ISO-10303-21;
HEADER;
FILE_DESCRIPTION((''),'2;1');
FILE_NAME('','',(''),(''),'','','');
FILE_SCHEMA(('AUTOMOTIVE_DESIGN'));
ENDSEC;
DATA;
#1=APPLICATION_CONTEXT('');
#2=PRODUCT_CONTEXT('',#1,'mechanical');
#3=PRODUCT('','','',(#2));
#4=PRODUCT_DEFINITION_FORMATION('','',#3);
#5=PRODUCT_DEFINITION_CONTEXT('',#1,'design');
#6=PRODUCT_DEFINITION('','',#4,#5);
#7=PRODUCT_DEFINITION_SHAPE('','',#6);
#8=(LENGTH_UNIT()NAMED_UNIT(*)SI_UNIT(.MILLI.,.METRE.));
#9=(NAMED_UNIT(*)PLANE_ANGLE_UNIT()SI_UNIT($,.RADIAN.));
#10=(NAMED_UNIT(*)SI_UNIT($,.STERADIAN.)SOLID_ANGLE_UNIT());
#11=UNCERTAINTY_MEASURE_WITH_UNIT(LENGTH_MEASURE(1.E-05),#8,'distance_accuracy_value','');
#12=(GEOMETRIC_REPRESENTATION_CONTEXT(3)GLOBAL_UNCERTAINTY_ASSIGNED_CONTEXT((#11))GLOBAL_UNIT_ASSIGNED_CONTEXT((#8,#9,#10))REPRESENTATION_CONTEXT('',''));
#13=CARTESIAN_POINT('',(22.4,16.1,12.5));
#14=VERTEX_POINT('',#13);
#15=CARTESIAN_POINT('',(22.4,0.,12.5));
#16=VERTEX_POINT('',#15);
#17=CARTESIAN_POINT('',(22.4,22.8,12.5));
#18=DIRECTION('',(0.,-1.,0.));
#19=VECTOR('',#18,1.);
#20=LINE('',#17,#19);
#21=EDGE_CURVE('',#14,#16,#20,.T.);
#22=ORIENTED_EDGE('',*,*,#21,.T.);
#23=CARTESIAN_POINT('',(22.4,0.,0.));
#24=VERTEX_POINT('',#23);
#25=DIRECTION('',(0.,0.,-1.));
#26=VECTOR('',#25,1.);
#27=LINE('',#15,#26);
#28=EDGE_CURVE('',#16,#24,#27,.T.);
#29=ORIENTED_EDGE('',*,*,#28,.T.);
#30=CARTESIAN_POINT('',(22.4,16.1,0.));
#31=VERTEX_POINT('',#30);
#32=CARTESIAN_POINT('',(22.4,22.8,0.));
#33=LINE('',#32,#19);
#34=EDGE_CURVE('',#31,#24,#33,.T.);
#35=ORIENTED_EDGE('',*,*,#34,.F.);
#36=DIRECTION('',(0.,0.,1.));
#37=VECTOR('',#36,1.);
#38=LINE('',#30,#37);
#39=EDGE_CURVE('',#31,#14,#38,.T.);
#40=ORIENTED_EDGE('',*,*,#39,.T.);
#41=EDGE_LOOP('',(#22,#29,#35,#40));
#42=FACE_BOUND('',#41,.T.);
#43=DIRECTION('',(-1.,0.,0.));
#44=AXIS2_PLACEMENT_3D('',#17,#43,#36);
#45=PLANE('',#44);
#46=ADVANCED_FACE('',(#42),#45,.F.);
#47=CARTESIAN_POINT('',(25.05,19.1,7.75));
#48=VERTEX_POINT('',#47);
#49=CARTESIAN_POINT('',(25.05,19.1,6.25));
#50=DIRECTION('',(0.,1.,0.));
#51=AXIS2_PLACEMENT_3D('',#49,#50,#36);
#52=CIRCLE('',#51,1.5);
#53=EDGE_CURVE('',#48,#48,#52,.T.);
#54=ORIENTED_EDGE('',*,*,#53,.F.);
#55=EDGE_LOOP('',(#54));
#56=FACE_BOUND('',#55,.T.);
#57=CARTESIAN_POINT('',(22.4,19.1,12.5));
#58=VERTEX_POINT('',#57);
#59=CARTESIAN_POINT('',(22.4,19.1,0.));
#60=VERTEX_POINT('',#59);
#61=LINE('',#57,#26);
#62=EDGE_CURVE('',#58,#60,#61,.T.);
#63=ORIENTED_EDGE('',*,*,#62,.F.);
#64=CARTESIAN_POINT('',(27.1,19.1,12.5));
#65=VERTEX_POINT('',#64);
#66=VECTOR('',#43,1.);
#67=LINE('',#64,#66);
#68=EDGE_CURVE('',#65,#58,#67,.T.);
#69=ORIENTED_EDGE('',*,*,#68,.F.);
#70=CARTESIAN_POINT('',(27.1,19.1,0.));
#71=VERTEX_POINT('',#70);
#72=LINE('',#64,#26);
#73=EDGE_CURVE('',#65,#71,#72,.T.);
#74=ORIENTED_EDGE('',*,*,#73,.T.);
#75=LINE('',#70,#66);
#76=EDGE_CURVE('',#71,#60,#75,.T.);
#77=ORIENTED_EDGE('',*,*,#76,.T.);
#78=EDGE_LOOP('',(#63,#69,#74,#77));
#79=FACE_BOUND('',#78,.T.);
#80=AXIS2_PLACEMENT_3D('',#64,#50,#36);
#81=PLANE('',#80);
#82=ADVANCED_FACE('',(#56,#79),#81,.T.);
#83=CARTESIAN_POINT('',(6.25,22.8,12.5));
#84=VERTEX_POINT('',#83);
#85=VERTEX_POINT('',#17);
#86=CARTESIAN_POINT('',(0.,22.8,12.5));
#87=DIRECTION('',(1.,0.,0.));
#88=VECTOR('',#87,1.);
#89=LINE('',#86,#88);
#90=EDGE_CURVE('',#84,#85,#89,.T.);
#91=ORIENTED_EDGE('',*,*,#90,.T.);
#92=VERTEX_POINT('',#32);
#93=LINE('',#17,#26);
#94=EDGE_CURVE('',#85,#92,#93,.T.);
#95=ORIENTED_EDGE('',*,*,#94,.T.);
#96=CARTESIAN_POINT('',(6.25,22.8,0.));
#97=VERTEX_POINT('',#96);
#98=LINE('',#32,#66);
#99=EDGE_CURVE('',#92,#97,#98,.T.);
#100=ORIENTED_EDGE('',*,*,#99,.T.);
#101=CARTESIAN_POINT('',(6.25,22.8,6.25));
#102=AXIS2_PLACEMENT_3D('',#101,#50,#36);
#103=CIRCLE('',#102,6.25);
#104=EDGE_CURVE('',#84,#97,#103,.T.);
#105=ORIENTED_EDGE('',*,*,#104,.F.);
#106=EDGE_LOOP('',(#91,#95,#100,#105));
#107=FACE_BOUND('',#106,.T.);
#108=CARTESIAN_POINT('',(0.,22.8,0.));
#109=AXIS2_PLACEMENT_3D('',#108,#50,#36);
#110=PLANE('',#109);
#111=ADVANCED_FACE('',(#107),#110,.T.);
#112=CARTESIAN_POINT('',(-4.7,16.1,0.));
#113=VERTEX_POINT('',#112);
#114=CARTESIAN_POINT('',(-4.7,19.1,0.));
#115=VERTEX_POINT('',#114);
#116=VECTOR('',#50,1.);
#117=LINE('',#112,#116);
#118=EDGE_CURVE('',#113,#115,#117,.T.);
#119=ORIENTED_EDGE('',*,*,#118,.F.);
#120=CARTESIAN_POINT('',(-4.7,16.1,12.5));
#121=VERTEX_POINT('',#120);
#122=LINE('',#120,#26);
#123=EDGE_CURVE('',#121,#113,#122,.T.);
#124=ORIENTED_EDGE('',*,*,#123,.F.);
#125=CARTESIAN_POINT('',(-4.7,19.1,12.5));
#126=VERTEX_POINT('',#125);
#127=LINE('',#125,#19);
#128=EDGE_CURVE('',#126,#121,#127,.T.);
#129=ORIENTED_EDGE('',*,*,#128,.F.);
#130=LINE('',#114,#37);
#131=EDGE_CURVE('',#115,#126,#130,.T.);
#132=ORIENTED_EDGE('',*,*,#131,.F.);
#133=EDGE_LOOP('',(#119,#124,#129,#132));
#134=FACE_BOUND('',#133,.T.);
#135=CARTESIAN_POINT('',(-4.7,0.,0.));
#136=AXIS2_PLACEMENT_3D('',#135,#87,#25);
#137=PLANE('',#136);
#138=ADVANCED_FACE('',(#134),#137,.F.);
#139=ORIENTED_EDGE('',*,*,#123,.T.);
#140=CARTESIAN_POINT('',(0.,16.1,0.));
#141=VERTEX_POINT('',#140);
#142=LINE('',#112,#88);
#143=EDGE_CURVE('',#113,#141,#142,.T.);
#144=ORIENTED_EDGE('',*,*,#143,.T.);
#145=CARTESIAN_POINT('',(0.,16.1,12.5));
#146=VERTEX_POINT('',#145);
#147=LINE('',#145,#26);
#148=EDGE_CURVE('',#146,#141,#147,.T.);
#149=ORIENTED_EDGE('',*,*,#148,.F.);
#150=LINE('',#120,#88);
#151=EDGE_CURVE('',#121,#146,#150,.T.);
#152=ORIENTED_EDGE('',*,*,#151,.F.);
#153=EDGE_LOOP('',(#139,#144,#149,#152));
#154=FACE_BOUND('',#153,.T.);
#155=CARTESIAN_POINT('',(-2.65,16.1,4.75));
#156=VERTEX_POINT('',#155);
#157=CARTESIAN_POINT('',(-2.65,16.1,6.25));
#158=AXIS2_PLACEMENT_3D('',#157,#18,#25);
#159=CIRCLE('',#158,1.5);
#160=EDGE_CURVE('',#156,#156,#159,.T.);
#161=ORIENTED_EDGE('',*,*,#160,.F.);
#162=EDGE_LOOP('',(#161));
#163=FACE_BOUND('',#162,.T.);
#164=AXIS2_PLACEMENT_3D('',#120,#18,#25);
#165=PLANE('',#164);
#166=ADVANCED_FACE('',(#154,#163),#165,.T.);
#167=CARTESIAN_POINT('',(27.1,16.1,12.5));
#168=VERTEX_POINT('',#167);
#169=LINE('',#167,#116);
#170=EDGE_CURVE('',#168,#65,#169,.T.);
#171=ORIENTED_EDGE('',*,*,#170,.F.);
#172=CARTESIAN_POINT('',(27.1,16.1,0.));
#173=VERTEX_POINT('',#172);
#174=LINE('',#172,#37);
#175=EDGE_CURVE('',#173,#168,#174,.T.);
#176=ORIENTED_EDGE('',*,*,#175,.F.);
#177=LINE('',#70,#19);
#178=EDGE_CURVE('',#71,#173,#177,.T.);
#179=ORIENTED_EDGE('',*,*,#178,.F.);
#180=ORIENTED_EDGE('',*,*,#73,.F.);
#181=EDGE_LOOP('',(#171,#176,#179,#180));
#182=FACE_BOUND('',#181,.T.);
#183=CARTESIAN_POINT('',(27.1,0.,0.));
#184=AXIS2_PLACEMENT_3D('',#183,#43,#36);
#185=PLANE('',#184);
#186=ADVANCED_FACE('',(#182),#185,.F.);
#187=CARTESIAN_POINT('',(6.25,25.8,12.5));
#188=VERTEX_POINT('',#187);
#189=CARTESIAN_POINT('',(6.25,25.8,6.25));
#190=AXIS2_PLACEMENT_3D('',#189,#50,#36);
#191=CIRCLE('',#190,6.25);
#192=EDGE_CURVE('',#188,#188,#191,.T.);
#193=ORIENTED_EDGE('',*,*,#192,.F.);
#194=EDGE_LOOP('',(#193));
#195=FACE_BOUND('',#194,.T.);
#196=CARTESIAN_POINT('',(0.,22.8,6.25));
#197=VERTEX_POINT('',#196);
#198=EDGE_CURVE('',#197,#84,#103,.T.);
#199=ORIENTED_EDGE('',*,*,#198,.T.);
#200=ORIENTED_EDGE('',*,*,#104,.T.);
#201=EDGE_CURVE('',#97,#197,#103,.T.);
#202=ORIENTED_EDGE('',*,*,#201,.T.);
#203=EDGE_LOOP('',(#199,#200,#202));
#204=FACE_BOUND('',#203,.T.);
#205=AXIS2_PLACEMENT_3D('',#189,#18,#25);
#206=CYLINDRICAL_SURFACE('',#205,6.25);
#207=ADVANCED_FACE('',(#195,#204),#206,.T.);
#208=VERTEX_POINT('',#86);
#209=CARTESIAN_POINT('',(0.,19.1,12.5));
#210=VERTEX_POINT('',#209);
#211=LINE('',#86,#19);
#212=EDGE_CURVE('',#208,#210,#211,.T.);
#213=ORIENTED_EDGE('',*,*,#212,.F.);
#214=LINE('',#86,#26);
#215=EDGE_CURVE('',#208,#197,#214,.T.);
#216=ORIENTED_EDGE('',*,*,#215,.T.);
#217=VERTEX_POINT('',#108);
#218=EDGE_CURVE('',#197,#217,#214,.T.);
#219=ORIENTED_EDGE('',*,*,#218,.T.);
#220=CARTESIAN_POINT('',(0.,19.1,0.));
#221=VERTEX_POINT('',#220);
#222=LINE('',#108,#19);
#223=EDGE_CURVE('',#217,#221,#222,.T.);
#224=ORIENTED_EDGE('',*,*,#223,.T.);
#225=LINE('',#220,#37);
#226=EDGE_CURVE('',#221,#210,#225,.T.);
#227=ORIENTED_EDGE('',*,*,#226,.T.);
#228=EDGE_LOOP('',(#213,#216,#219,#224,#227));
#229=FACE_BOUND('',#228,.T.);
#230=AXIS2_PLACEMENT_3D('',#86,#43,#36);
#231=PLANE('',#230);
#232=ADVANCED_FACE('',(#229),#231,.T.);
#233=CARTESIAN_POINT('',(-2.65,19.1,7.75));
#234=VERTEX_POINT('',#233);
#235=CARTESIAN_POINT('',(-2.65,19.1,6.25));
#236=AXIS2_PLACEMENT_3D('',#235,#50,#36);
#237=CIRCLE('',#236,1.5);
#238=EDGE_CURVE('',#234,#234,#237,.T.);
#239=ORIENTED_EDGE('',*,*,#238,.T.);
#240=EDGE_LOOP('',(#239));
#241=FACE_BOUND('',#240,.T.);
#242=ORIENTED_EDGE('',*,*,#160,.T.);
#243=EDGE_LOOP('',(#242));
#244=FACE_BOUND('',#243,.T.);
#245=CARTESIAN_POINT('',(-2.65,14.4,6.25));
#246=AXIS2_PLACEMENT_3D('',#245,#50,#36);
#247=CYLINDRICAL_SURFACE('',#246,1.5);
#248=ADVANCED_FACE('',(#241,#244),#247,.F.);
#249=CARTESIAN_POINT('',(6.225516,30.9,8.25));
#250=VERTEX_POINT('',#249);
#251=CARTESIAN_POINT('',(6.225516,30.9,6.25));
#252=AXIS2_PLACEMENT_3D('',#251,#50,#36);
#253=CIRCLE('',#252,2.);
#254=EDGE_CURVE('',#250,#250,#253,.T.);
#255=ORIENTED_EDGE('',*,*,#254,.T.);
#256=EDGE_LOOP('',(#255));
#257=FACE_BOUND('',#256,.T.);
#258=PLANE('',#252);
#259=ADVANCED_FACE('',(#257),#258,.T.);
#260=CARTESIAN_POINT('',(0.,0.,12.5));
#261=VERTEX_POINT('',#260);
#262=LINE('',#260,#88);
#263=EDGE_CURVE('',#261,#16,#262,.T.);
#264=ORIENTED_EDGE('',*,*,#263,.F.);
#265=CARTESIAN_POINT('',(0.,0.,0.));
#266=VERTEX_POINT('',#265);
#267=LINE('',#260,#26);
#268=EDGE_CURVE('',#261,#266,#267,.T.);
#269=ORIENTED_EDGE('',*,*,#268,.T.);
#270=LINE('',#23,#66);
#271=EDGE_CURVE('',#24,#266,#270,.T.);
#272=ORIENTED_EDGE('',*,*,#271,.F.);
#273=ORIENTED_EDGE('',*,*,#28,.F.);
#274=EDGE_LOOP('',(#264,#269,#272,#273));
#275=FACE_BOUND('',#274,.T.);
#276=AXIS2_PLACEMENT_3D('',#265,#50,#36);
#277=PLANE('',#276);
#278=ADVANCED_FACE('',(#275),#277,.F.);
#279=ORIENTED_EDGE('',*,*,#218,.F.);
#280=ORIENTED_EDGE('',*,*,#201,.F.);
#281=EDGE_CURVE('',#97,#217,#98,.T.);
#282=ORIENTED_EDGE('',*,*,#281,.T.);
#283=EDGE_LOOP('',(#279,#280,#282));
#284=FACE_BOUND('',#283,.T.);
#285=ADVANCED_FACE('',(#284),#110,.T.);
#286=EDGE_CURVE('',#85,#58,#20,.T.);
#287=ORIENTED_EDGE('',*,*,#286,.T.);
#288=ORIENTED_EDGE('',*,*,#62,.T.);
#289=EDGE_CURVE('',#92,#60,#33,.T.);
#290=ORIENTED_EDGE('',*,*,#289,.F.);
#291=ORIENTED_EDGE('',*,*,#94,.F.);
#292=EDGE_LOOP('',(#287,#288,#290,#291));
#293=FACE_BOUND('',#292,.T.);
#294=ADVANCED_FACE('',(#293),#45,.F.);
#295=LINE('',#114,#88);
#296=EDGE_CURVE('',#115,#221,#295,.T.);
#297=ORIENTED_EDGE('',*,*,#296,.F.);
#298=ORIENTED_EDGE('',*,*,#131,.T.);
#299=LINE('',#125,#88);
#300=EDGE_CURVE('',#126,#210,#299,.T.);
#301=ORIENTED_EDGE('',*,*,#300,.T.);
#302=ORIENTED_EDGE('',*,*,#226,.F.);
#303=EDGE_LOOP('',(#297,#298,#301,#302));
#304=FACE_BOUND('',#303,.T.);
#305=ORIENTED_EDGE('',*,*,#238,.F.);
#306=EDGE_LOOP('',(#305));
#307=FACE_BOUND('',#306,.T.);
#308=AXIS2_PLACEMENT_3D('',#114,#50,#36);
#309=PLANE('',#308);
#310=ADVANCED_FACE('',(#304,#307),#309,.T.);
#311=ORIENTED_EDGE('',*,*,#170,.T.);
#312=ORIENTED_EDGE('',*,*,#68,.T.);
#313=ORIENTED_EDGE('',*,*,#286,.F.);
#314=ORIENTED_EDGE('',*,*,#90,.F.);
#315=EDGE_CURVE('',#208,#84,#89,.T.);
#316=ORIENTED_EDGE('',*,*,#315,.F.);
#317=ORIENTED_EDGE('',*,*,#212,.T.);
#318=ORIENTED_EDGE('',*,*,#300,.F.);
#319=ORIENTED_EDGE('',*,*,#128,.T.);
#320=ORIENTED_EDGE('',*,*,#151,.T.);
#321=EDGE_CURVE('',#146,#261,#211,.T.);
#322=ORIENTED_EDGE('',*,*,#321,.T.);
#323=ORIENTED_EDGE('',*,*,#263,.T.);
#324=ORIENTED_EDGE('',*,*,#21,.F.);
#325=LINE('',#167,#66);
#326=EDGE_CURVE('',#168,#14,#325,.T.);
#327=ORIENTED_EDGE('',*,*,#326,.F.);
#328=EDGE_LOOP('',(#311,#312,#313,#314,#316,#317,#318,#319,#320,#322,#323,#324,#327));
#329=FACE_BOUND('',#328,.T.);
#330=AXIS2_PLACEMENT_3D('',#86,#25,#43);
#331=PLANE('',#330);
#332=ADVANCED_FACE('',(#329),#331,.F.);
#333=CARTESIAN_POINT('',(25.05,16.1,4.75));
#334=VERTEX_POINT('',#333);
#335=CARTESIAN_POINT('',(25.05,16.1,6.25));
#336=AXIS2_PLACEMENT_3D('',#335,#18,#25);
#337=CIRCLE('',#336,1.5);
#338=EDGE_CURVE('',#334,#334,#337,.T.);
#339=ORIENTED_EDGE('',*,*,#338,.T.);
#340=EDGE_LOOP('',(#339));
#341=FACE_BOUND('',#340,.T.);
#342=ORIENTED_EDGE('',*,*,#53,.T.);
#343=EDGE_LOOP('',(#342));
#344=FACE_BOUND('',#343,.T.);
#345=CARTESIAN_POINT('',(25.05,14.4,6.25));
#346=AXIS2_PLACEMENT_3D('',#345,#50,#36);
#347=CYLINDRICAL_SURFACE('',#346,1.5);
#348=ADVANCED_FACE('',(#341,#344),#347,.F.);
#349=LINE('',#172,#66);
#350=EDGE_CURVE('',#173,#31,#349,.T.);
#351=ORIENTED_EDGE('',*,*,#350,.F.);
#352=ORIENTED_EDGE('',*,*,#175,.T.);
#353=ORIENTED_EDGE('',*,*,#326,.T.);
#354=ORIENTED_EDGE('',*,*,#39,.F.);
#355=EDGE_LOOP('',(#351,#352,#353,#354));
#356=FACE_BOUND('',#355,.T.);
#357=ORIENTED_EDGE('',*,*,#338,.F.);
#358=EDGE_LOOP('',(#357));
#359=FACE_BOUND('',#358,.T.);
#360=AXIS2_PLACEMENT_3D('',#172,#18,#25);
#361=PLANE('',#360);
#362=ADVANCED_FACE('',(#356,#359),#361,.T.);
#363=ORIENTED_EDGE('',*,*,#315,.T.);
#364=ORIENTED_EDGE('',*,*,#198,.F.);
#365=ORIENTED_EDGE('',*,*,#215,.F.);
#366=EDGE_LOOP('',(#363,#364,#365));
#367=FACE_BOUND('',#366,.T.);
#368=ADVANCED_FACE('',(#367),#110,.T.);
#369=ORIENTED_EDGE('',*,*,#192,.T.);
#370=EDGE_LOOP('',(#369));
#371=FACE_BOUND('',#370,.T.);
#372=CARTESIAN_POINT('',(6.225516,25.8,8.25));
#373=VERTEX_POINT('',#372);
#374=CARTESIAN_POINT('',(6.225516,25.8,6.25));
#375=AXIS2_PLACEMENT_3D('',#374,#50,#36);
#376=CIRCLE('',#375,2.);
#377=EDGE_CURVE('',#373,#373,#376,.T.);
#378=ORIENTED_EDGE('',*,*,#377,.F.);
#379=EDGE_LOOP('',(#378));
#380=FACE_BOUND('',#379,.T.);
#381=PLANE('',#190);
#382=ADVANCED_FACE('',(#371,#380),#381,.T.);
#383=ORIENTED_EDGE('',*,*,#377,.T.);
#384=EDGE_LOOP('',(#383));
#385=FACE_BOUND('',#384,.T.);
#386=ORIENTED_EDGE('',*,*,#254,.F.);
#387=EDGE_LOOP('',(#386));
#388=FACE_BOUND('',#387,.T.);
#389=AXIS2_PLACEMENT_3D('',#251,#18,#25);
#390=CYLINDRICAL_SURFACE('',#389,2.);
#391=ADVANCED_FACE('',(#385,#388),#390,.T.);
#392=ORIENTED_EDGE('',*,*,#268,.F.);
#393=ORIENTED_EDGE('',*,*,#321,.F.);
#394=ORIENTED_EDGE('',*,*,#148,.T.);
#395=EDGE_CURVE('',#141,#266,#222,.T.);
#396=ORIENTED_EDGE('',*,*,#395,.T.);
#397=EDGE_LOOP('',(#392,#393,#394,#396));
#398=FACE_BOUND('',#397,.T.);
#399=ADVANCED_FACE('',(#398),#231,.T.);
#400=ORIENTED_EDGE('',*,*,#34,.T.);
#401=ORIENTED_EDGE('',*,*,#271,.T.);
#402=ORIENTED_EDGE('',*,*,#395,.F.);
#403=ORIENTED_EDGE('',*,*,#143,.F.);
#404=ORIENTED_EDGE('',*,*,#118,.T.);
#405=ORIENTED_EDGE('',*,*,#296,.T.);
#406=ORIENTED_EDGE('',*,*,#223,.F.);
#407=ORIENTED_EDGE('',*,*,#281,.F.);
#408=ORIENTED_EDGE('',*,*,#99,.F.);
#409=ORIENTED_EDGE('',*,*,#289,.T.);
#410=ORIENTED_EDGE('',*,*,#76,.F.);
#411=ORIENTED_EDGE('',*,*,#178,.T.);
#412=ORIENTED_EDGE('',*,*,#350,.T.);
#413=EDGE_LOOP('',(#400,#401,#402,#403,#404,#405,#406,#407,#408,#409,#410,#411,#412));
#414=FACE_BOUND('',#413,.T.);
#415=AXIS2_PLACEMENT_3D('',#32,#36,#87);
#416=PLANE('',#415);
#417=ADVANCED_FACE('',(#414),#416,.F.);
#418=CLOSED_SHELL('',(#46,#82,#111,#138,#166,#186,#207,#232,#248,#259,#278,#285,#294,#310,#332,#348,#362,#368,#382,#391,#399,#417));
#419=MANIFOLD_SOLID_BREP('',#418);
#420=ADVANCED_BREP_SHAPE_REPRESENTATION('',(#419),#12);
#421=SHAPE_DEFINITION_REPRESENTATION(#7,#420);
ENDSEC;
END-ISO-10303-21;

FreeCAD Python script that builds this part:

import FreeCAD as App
import Part
import Sketcher

V = App.Vector
Q = App.Units.Quantity


def add_polygon(sketch, points):
    """Adds a closed chain of lines whose ends are joined by coincident constraints."""
    first, n = sketch.GeometryCount, len(points)
    for a, b in zip(points, points[1:] + points[:1]):
        sketch.addGeometry(Part.LineSegment(App.Vector(*a, 0), App.Vector(*b, 0)), False)
    for i in range(n):
        sketch.addConstraint(Sketcher.Constraint("Coincident", first + i, 2, first + (i + 1) % n, 1))

doc = App.newDocument("Part")
body = doc.addObject("PartDesign::Body", "Body")

sketch1 = doc.addObject("Sketcher::SketchObject", "Sketch")
body.addObject(sketch1)
sketch1.AttachmentSupport = (doc.XZ_Plane, [""])
sketch1.MapMode = "FlatFace"
add_polygon(sketch1, [(0, 0), (0, 12.5), (22.4, 12.5), (22.4, 0)])
sketch1.addConstraint(Sketcher.Constraint("Vertical", 0))
sketch1.addConstraint(Sketcher.Constraint("Horizontal", 1))
sketch1.addConstraint(Sketcher.Constraint("Vertical", 2))
sketch1.addConstraint(Sketcher.Constraint("Horizontal", 3))
sketch1.addConstraint(Sketcher.Constraint("Coincident", 3, 2, -1, 1))
sketch1.addConstraint(Sketcher.Constraint("DistanceX", 1, 1, 1, 2, Q("22.4 mm")))
sketch1.addConstraint(Sketcher.Constraint("DistanceY", 0, 1, 0, 2, Q("12.5 mm")))
pad1 = doc.addObject("PartDesign::Pad", "Pad")
body.addObject(pad1)
pad1.Profile = sketch1
pad1.Length = 22.8
pad1.Reversed = True

sketch2 = doc.addObject("Sketcher::SketchObject", "Sketch001")
body.addObject(sketch2)
sketch2.AttachmentSupport = (doc.YZ_Plane, [""])
sketch2.MapMode = "FlatFace"
sketch2.AttachmentOffset = App.Placement(V(0, 0, 22.4), App.Rotation())
add_polygon(sketch2, [(19.1, 12.5), (16.1, 12.5), (16.1, 0), (19.1, 0)])
sketch2.addConstraint(Sketcher.Constraint("Horizontal", 0))
sketch2.addConstraint(Sketcher.Constraint("Vertical", 1))
sketch2.addConstraint(Sketcher.Constraint("Horizontal", 2))
sketch2.addConstraint(Sketcher.Constraint("Vertical", 3))
sketch2.addConstraint(Sketcher.Constraint("PointOnObject", 1, 2, -1))
sketch2.addConstraint(Sketcher.Constraint("DistanceX", 0, 2, 0, 1, Q("3 mm")))
sketch2.addConstraint(Sketcher.Constraint("DistanceY", 1, 2, 1, 1, Q("12.5 mm")))
sketch2.addConstraint(Sketcher.Constraint("DistanceX", -1, 1, 0, 2, Q("16.1 mm")))
pad2 = doc.addObject("PartDesign::Pad", "Pad001")
body.addObject(pad2)
pad2.Profile = sketch2
pad2.Length = 4.7

sketch3 = doc.addObject("Sketcher::SketchObject", "Sketch002")
body.addObject(sketch3)
sketch3.AttachmentSupport = (doc.YZ_Plane, [""])
sketch3.MapMode = "FlatFace"
add_polygon(sketch3, [(19.1, 0), (16.1, 0), (16.1, 12.5), (19.1, 12.5)])
sketch3.addConstraint(Sketcher.Constraint("Horizontal", 0))
sketch3.addConstraint(Sketcher.Constraint("Vertical", 1))
sketch3.addConstraint(Sketcher.Constraint("Horizontal", 2))
sketch3.addConstraint(Sketcher.Constraint("Vertical", 3))
sketch3.addConstraint(Sketcher.Constraint("PointOnObject", 0, 2, -1))
sketch3.addConstraint(Sketcher.Constraint("DistanceX", 0, 2, 0, 1, Q("3 mm")))
sketch3.addConstraint(Sketcher.Constraint("DistanceY", 1, 1, 1, 2, Q("12.5 mm")))
sketch3.addConstraint(Sketcher.Constraint("DistanceX", -1, 1, 0, 2, Q("16.1 mm")))
pad3 = doc.addObject("PartDesign::Pad", "Pad002")
body.addObject(pad3)
pad3.Profile = sketch3
pad3.Length = 4.7
pad3.Reversed = True

sketch4 = doc.addObject("Sketcher::SketchObject", "Sketch003")
body.addObject(sketch4)
sketch4.AttachmentSupport = (doc.XZ_Plane, [""])
sketch4.MapMode = "FlatFace"
sketch4.AttachmentOffset = App.Placement(V(0, 0, -19.1), App.Rotation())
sketch4.addGeometry(Part.Circle(V(-2.65, 6.25, 0), V(0, 0, 1), 1.5), False)
sketch4.addGeometry(Part.Circle(V(25.05, 6.25, 0), V(0, 0, 1), 1.5), False)
sketch4.addConstraint(Sketcher.Constraint("Equal", 0, 1))
sketch4.addConstraint(Sketcher.Constraint("Horizontal", 0, 3, 1, 3))
sketch4.addConstraint(Sketcher.Constraint("Diameter", 0, Q("3 mm")))
sketch4.addConstraint(Sketcher.Constraint("DistanceX", 0, 3, 1, 3, Q("27.7 mm")))
sketch4.addConstraint(Sketcher.Constraint("DistanceX", 0, 3, -1, 1, Q("2.65 mm")))
sketch4.addConstraint(Sketcher.Constraint("DistanceY", -1, 1, 0, 3, Q("6.25 mm")))
pocket1 = doc.addObject("PartDesign::Pocket", "Pocket")
body.addObject(pocket1)
pocket1.Profile = sketch4
pocket1.Length = 4.7
pocket1.Reversed = True

sketch5 = doc.addObject("Sketcher::SketchObject", "Sketch004")
body.addObject(sketch5)
sketch5.AttachmentSupport = (doc.XZ_Plane, [""])
sketch5.MapMode = "FlatFace"
sketch5.AttachmentOffset = App.Placement(V(0, 0, -22.8), App.Rotation())
sketch5.addGeometry(Part.Circle(V(6.25, 6.25, 0), V(0, 0, 1), 6.25), False)
sketch5.addConstraint(Sketcher.Constraint("Diameter", 0, Q("12.5 mm")))
sketch5.addConstraint(Sketcher.Constraint("DistanceX", -1, 1, 0, 3, Q("6.25 mm")))
sketch5.addConstraint(Sketcher.Constraint("DistanceY", -1, 1, 0, 3, Q("6.25 mm")))
pad4 = doc.addObject("PartDesign::Pad", "Pad003")
body.addObject(pad4)
pad4.Profile = sketch5
pad4.Length = 3
pad4.Reversed = True

sketch6 = doc.addObject("Sketcher::SketchObject", "Sketch005")
body.addObject(sketch6)
sketch6.AttachmentSupport = (doc.XZ_Plane, [""])
sketch6.MapMode = "FlatFace"
sketch6.AttachmentOffset = App.Placement(V(0, 0, -25.8), App.Rotation())
sketch6.addGeometry(Part.Circle(V(6.225516, 6.25, 0), V(0, 0, 1), 2), False)
sketch6.addConstraint(Sketcher.Constraint("Diameter", 0, Q("4 mm")))
sketch6.addConstraint(Sketcher.Constraint("DistanceY", -1, 1, 0, 3, Q("6.25 mm")))
sketch6.addConstraint(Sketcher.Constraint("DistanceX", -1, 1, 0, 3, Q("6.225516 mm")))
pad5 = doc.addObject("PartDesign::Pad", "Pad004")
body.addObject(pad5)
pad5.Profile = sketch6
pad5.Length = 5.1
pad5.Reversed = True

doc.recompute()
